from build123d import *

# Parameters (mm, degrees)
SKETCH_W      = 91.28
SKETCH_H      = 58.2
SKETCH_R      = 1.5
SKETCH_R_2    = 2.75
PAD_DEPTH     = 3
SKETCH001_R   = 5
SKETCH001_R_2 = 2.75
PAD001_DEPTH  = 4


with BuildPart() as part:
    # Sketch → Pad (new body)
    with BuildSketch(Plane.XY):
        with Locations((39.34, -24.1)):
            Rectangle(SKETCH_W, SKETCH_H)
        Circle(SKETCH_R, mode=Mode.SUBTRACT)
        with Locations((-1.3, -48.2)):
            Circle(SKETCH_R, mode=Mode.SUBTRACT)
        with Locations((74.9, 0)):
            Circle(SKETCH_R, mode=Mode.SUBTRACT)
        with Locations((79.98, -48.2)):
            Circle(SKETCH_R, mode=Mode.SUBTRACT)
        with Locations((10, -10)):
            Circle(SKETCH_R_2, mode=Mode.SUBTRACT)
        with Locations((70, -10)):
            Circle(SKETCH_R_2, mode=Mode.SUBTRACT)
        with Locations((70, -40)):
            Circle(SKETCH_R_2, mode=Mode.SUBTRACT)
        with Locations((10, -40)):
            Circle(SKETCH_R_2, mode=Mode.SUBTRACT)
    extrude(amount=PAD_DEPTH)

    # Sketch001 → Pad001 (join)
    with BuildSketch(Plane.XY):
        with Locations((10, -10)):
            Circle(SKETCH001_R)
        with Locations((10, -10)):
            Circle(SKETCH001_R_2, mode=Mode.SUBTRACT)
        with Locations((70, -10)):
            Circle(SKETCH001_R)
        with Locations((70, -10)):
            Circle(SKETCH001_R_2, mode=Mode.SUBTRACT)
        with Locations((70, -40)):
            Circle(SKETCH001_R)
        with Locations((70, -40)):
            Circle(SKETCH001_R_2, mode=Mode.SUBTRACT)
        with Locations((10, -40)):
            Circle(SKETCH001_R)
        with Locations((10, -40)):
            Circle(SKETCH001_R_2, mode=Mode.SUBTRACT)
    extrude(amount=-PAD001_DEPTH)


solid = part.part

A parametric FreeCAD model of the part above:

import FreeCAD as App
import Part
import Sketcher
Q = App.Units.Quantity


def add_polygon(sketch, points):
    """Adds a closed chain of lines whose ends are joined by coincident constraints."""
    first, n = sketch.GeometryCount, len(points)
    for a, b in zip(points, points[1:] + points[:1]):
        sketch.addGeometry(Part.LineSegment(App.Vector(*a, 0), App.Vector(*b, 0)), False)
    for i in range(n):
        sketch.addConstraint(Sketcher.Constraint("Coincident", first + i, 2, first + (i + 1) % n, 1))

doc = App.newDocument("Part")
body = doc.addObject("PartDesign::Body", "Body")

# Sketch on XY plane
sketch1 = body.newObject("Sketcher::SketchObject", "Sketch")
sketch1.AttachmentSupport = (doc.getObject("XY_Plane"), [""])
sketch1.MapMode = "FlatFace"
add_polygon(sketch1, [(-6.3, 5), (-6.3, -53.2), (85, -53.2), (85, 5)])  # lines 0-3
sketch1.addGeometry(Part.Circle(App.Vector(-1.3, -48.2, 0), App.Vector(0, 0, 1), 1.5), False)  # 4
sketch1.addGeometry(Part.Circle(App.Vector(10, -40, 0), App.Vector(0, 0, 1), 2.8), False)  # 5
sketch1.addGeometry(Part.Circle(App.Vector(80, -48.2, 0), App.Vector(0, 0, 1), 1.5), False)  # 6
sketch1.addGeometry(Part.Circle(App.Vector(70, -40, 0), App.Vector(0, 0, 1), 2.8), False)  # 7
sketch1.addGeometry(Part.Circle(App.Vector(10, -10, 0), App.Vector(0, 0, 1), 2.8), False)  # 8
sketch1.addGeometry(Part.Circle(App.Vector(0, 0, 0), App.Vector(0, 0, 1), 1.5), False)  # 9
sketch1.addGeometry(Part.Circle(App.Vector(70, -10, 0), App.Vector(0, 0, 1), 2.8), False)  # 10
sketch1.addGeometry(Part.Circle(App.Vector(74.9, 0, 0), App.Vector(0, 0, 1), 1.5), False)  # 11
sketch1.addConstraint(Sketcher.Constraint("Vertical", 0))
sketch1.addConstraint(Sketcher.Constraint("Horizontal", 1))
sketch1.addConstraint(Sketcher.Constraint("Vertical", 2))
sketch1.addConstraint(Sketcher.Constraint("Horizontal", 3))
sketch1.addConstraint(Sketcher.Constraint("Coincident", 9, 3, -1, 1))
sketch1.addConstraint(Sketcher.Constraint("Equal", 4, 6))
sketch1.addConstraint(Sketcher.Constraint("Equal", 5, 7))
sketch1.addConstraint(Sketcher.Constraint("Equal", 7, 8))
sketch1.addConstraint(Sketcher.Constraint("Equal", 6, 9))
sketch1.addConstraint(Sketcher.Constraint("Equal", 8, 10))
sketch1.addConstraint(Sketcher.Constraint("Equal", 9, 11))
sketch1.addConstraint(Sketcher.Constraint("PointOnObject", 11, 3, -1))
sketch1.addConstraint(Sketcher.Constraint("Horizontal", 4, 3, 6, 3))
sketch1.addConstraint(Sketcher.Constraint("Horizontal", 5, 3, 7, 3))
sketch1.addConstraint(Sketcher.Constraint("Horizontal", 8, 3, 10, 3))
sketch1.addConstraint(Sketcher.Constraint("Vertical", 5, 3, 8, 3))
sketch1.addConstraint(Sketcher.Constraint("Vertical", 7, 3, 10, 3))
sketch1.addConstraint(Sketcher.Constraint("Diameter", 4, Q("3 mm")))
sketch1.addConstraint(Sketcher.Constraint("Diameter", 5, Q("5.5 mm")))
sketch1.addConstraint(Sketcher.Constraint("DistanceY", 0, 2, 0, 1, Q("58.2 mm")))
sketch1.addConstraint(Sketcher.Constraint("DistanceX", -1, 1, 5, 3, Q("10 mm")))
sketch1.addConstraint(Sketcher.Constraint("DistanceY", 5, 3, -1, 1, Q("40 mm")))
sketch1.addConstraint(Sketcher.Constraint("DistanceX", -1, 1, 7, 3, Q("70 mm")))
sketch1.addConstraint(Sketcher.Constraint("DistanceY", 8, 3, -1, 1, Q("10 mm")))
sketch1.addConstraint(Sketcher.Constraint("DistanceY", -1, 1, 2, 2, Q("5 mm")))
sketch1.addConstraint(Sketcher.Constraint("DistanceX", 0, 2, 4, 3, Q("5 mm")))
sketch1.addConstraint(Sketcher.Constraint("DistanceY", 0, 2, 4, 3, Q("5 mm")))
sketch1.addConstraint(Sketcher.Constraint("DistanceX", 6, 3, 1, 2, Q("5 mm")))
sketch1.addConstraint(Sketcher.Constraint("DistanceX", 1, 1, 1, 2, Q("91.28 mm")))
sketch1.addConstraint(Sketcher.Constraint("DistanceX", 4, 3, -1, 1, Q("1.3 mm")))
sketch1.addConstraint(Sketcher.Constraint("DistanceX", -1, 1, 11, 3, Q("74.9 mm")))
pad1 = body.newObject("PartDesign::Pad", "Pad")
pad1.Profile = sketch1
pad1.Length = 3

# Sketch on XY plane
sketch2 = body.newObject("Sketcher::SketchObject", "Sketch001")
sketch2.AttachmentSupport = (doc.getObject("XY_Plane"), [""])
sketch2.MapMode = "FlatFace"
sketch2.addGeometry(Part.Circle(App.Vector(10, -10, 0), App.Vector(0, 0, 1), 5), False)
sketch2.addGeometry(Part.Circle(App.Vector(10, -10, 0), App.Vector(0, 0, 1), 2.8), False)
sketch2.addGeometry(Part.Circle(App.Vector(70, -10, 0), App.Vector(0, 0, 1), 5), False)
sketch2.addGeometry(Part.Circle(App.Vector(70, -10, 0), App.Vector(0, 0, 1), 2.8), False)
sketch2.addGeometry(Part.Circle(App.Vector(70, -40, 0), App.Vector(0, 0, 1), 5), False)
sketch2.addGeometry(Part.Circle(App.Vector(70, -40, 0), App.Vector(0, 0, 1), 2.8), False)
sketch2.addGeometry(Part.Circle(App.Vector(10, -40, 0), App.Vector(0, 0, 1), 5), False)
sketch2.addGeometry(Part.Circle(App.Vector(10, -40, 0), App.Vector(0, 0, 1), 2.8), False)
sketch2.addConstraint(Sketcher.Constraint("Coincident", 1, 3, 0, 3))
sketch2.addConstraint(Sketcher.Constraint("Coincident", 3, 3, 2, 3))
sketch2.addConstraint(Sketcher.Constraint("Coincident", 5, 3, 4, 3))
sketch2.addConstraint(Sketcher.Constraint("Coincident", 7, 3, 6, 3))
sketch2.addConstraint(Sketcher.Constraint("Equal", 0, 2))
sketch2.addConstraint(Sketcher.Constraint("Equal", 1, 3))
sketch2.addConstraint(Sketcher.Constraint("Equal", 2, 4))
sketch2.addConstraint(Sketcher.Constraint("Equal", 3, 5))
sketch2.addConstraint(Sketcher.Constraint("Equal", 4, 6))
sketch2.addConstraint(Sketcher.Constraint("Equal", 5, 7))
sketch2.addConstraint(Sketcher.Constraint("Horizontal", 1, 3, 2, 3))
sketch2.addConstraint(Sketcher.Constraint("Horizontal", 5, 3, 6, 3))
sketch2.addConstraint(Sketcher.Constraint("Vertical", 3, 3, 4, 3))
sketch2.addConstraint(Sketcher.Constraint("Vertical", 1, 3, 6, 3))
sketch2.addConstraint(Sketcher.Constraint("Diameter", 0, Q("10 mm")))
sketch2.addConstraint(Sketcher.Constraint("Diameter", 1, Q("5.5 mm")))
sketch2.addConstraint(Sketcher.Constraint("DistanceX", -1, 1, 0, 3, Q("10 mm")))
sketch2.addConstraint(Sketcher.Constraint("DistanceY", 0, 3, -1, 1, Q("10 mm")))
sketch2.addConstraint(Sketcher.Constraint("DistanceX", -1, 1, 2, 3, Q("70 mm")))
sketch2.addConstraint(Sketcher.Constraint("DistanceY", 4, 3, -1, 1, Q("40 mm")))
pad2 = body.newObject("PartDesign::Pad", "Pad001")
pad2.Profile = sketch2
pad2.Length = 4
pad2.Reversed = True

doc.recompute()
